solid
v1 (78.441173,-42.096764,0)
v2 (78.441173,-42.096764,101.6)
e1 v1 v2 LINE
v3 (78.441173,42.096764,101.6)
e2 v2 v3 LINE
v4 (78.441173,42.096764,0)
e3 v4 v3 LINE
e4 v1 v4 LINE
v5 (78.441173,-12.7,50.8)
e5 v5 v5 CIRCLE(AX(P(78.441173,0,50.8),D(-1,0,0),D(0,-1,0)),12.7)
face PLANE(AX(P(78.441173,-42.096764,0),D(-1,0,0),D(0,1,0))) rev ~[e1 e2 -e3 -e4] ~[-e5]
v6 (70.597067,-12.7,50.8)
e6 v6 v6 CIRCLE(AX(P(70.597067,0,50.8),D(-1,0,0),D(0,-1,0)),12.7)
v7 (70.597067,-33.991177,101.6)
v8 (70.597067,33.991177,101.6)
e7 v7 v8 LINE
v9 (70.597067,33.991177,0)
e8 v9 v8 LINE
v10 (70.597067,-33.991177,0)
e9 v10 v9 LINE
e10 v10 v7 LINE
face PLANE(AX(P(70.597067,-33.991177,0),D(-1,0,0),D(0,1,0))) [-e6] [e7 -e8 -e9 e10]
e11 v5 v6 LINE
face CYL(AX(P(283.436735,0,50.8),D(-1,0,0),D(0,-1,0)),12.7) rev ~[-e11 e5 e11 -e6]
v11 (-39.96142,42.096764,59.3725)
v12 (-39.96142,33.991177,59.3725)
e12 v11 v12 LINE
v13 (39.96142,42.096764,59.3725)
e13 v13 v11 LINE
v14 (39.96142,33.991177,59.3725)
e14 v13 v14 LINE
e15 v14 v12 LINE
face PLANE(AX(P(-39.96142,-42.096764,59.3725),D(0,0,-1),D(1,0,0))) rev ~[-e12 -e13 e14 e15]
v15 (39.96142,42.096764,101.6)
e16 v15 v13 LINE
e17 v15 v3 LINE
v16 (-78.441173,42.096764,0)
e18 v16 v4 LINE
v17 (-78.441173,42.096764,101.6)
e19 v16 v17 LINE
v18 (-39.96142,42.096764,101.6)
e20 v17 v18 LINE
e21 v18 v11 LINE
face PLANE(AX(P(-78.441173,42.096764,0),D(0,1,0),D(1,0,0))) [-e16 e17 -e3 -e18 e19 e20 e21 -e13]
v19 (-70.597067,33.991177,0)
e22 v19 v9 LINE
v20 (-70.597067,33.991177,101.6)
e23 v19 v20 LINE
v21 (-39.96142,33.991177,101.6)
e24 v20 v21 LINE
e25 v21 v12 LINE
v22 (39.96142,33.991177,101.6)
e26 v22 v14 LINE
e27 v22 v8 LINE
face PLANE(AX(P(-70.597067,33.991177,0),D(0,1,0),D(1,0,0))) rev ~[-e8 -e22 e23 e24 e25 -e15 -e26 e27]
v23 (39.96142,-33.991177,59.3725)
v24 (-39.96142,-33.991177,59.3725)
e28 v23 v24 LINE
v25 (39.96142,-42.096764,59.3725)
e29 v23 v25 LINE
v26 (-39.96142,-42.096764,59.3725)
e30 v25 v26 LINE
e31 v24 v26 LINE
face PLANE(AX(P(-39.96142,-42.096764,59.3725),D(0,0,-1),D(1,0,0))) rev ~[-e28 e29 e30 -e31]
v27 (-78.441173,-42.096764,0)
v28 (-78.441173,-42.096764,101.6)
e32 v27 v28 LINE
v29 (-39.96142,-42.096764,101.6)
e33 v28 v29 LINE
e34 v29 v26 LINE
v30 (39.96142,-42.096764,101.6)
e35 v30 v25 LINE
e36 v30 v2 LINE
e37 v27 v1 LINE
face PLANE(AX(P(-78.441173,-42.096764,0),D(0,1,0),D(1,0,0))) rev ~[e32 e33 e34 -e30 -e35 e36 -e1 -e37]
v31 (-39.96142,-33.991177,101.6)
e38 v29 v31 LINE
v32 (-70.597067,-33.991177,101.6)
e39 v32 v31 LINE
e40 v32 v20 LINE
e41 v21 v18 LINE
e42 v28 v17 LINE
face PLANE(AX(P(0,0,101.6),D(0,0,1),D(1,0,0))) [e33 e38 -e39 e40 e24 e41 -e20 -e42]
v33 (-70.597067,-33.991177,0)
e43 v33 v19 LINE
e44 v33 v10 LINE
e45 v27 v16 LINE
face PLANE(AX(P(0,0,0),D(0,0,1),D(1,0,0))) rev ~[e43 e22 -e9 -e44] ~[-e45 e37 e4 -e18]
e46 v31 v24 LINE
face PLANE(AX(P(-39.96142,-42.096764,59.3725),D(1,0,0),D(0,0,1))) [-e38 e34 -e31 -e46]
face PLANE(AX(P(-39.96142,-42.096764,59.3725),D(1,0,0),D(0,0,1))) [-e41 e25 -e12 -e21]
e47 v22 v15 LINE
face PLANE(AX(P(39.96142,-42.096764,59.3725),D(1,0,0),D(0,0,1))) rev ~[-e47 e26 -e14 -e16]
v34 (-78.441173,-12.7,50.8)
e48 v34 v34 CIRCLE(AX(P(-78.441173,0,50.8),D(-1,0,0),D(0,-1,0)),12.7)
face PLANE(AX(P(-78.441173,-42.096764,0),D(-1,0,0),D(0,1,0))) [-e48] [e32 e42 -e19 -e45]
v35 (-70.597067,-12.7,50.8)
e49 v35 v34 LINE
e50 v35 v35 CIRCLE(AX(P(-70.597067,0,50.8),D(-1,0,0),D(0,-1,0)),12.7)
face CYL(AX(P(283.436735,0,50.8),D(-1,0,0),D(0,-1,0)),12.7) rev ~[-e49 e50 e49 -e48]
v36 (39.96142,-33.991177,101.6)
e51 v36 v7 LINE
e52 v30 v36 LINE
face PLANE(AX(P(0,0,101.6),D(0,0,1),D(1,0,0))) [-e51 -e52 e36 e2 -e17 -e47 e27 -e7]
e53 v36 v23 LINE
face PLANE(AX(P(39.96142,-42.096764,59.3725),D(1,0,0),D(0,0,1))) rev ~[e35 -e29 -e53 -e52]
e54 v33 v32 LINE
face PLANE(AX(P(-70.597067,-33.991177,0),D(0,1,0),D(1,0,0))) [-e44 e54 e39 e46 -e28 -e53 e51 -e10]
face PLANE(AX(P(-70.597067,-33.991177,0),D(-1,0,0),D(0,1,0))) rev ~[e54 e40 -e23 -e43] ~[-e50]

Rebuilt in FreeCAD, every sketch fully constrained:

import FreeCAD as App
import Part
import Sketcher
Q = App.Units.Quantity


def add_polygon(sketch, points):
    """Adds a closed chain of lines whose ends are joined by coincident constraints."""
    first, n = sketch.GeometryCount, len(points)
    for a, b in zip(points, points[1:] + points[:1]):
        sketch.addGeometry(Part.LineSegment(App.Vector(*a, 0), App.Vector(*b, 0)), False)
    for i in range(n):
        sketch.addConstraint(Sketcher.Constraint("Coincident", first + i, 2, first + (i + 1) % n, 1))

doc = App.newDocument("Part")
params = doc.addObject("Spreadsheet::Sheet", "Params")
for row, (alias, value) in enumerate([
    ("pad1_length", "4 in"),
    ("pocket1_length", "15.02 in"),
    ("sketch3_diameter", "1 in"),
    ("hole_diameter", "1 in"),
], start=1):
    params.set(f"A{row}", alias)
    params.set(f"B{row}", "=" + value)
    params.setAlias(f"B{row}", alias)

body = doc.addObject("PartDesign::Body", "Body")

sketch1 = body.newObject("Sketcher::SketchObject", "Sketch")
sketch1.AttachmentSupport = (doc.getObject("XY_Plane"), [""])
sketch1.MapMode = "FlatFace"
add_polygon(sketch1, [(-78, 42), (-78, -42), (78, -42), (78, 42)])
add_polygon(sketch1, [(71, -34), (-71, -34), (-71, 34), (71, 34)])
sketch1.addConstraint(Sketcher.Constraint("Vertical", 0))
sketch1.addConstraint(Sketcher.Constraint("Horizontal", 1))
sketch1.addConstraint(Sketcher.Constraint("Vertical", 2))
sketch1.addConstraint(Sketcher.Constraint("Horizontal", 3))
sketch1.addConstraint(Sketcher.Constraint("Horizontal", 4))
sketch1.addConstraint(Sketcher.Constraint("Vertical", 5))
sketch1.addConstraint(Sketcher.Constraint("Horizontal", 6))
sketch1.addConstraint(Sketcher.Constraint("Vertical", 7))
sketch1.addConstraint(Sketcher.Constraint("Symmetric", 0, 2, 2, 2, -1, 1))
sketch1.addConstraint(Sketcher.Constraint("Symmetric", 4, 2, 6, 2, -1, 1))
sketch1.addConstraint(Sketcher.Constraint("DistanceY", 0, 2, 0, 1, 84.193528))
sketch1.addConstraint(Sketcher.Constraint("DistanceX", 1, 1, 1, 2, 156.882346))
sketch1.addConstraint(Sketcher.Constraint("DistanceX", 4, 2, 4, 1, 141.194134))
sketch1.addConstraint(Sketcher.Constraint("DistanceY", 5, 1, 5, 2, 67.982354))
pad1 = body.newObject("PartDesign::Pad", "Pad")
pad1.Profile = sketch1
pad1.setExpression("Length", "Params.pad1_length")

sketch2 = body.newObject("Sketcher::SketchObject", "Sketch001")
sketch2.AttachmentSupport = (doc.getObject("XZ_Plane"), [""])
sketch2.MapMode = "FlatFace"
sketch2.AttachmentOffset = App.Placement(App.Vector(0, 0, 42.096764), App.Rotation())
add_polygon(sketch2, [(-40, 102), (-40, 59), (40, 59), (40, 102)])
sketch2.addConstraint(Sketcher.Constraint("Vertical", 0))
sketch2.addConstraint(Sketcher.Constraint("Horizontal", 1))
sketch2.addConstraint(Sketcher.Constraint("Vertical", 2))
sketch2.addConstraint(Sketcher.Constraint("Horizontal", 3))
sketch2.addConstraint(Sketcher.Constraint("DistanceY", -1, 1, 2, 2, Q("4 in")))
sketch2.addConstraint(Sketcher.Constraint("DistanceY", 0, 2, 0, 1, Q("1.6625 in")))
sketch2.addConstraint(Sketcher.Constraint("DistanceX", 1, 1, 1, 2, 79.92284))
sketch2.addConstraint(Sketcher.Constraint("DistanceX", 0, 2, -1, 1, 39.96142))
pocket1 = body.newObject("PartDesign::Pocket", "Pocket")
pocket1.Profile = sketch2
pocket1.setExpression("Length", "Params.pocket1_length")
pocket1.Midplane = True

sketch3 = body.newObject("Sketcher::SketchObject", "Sketch002")
sketch3.AttachmentSupport = (doc.getObject("YZ_Plane"), [""])
sketch3.MapMode = "FlatFace"
sketch3.AttachmentOffset = App.Placement(App.Vector(0, 0, 78.441173), App.Rotation())
sketch3.addGeometry(Part.Circle(App.Vector(0, 51, 0), App.Vector(0, 0, 1), 13), False)
sketch3.addConstraint(Sketcher.Constraint("PointOnObject", 0, 3, -2))
sketch3.addConstraint(Sketcher.Constraint("Diameter", 0, Q("1 in")))
sketch3.addConstraint(Sketcher.Constraint("DistanceY", -1, 1, 0, 3, Q("2 in")))
sketch3.setExpression("Constraints[1]", "Params.sketch3_diameter")
doc.recompute()
hole = body.newObject("PartDesign::Hole", "Hole")
hole.Profile = sketch3
hole.ThreadType = "None"
hole.setExpression("Diameter", "Params.hole_diameter")
hole.DepthType = "ThroughAll"

doc.recompute()
